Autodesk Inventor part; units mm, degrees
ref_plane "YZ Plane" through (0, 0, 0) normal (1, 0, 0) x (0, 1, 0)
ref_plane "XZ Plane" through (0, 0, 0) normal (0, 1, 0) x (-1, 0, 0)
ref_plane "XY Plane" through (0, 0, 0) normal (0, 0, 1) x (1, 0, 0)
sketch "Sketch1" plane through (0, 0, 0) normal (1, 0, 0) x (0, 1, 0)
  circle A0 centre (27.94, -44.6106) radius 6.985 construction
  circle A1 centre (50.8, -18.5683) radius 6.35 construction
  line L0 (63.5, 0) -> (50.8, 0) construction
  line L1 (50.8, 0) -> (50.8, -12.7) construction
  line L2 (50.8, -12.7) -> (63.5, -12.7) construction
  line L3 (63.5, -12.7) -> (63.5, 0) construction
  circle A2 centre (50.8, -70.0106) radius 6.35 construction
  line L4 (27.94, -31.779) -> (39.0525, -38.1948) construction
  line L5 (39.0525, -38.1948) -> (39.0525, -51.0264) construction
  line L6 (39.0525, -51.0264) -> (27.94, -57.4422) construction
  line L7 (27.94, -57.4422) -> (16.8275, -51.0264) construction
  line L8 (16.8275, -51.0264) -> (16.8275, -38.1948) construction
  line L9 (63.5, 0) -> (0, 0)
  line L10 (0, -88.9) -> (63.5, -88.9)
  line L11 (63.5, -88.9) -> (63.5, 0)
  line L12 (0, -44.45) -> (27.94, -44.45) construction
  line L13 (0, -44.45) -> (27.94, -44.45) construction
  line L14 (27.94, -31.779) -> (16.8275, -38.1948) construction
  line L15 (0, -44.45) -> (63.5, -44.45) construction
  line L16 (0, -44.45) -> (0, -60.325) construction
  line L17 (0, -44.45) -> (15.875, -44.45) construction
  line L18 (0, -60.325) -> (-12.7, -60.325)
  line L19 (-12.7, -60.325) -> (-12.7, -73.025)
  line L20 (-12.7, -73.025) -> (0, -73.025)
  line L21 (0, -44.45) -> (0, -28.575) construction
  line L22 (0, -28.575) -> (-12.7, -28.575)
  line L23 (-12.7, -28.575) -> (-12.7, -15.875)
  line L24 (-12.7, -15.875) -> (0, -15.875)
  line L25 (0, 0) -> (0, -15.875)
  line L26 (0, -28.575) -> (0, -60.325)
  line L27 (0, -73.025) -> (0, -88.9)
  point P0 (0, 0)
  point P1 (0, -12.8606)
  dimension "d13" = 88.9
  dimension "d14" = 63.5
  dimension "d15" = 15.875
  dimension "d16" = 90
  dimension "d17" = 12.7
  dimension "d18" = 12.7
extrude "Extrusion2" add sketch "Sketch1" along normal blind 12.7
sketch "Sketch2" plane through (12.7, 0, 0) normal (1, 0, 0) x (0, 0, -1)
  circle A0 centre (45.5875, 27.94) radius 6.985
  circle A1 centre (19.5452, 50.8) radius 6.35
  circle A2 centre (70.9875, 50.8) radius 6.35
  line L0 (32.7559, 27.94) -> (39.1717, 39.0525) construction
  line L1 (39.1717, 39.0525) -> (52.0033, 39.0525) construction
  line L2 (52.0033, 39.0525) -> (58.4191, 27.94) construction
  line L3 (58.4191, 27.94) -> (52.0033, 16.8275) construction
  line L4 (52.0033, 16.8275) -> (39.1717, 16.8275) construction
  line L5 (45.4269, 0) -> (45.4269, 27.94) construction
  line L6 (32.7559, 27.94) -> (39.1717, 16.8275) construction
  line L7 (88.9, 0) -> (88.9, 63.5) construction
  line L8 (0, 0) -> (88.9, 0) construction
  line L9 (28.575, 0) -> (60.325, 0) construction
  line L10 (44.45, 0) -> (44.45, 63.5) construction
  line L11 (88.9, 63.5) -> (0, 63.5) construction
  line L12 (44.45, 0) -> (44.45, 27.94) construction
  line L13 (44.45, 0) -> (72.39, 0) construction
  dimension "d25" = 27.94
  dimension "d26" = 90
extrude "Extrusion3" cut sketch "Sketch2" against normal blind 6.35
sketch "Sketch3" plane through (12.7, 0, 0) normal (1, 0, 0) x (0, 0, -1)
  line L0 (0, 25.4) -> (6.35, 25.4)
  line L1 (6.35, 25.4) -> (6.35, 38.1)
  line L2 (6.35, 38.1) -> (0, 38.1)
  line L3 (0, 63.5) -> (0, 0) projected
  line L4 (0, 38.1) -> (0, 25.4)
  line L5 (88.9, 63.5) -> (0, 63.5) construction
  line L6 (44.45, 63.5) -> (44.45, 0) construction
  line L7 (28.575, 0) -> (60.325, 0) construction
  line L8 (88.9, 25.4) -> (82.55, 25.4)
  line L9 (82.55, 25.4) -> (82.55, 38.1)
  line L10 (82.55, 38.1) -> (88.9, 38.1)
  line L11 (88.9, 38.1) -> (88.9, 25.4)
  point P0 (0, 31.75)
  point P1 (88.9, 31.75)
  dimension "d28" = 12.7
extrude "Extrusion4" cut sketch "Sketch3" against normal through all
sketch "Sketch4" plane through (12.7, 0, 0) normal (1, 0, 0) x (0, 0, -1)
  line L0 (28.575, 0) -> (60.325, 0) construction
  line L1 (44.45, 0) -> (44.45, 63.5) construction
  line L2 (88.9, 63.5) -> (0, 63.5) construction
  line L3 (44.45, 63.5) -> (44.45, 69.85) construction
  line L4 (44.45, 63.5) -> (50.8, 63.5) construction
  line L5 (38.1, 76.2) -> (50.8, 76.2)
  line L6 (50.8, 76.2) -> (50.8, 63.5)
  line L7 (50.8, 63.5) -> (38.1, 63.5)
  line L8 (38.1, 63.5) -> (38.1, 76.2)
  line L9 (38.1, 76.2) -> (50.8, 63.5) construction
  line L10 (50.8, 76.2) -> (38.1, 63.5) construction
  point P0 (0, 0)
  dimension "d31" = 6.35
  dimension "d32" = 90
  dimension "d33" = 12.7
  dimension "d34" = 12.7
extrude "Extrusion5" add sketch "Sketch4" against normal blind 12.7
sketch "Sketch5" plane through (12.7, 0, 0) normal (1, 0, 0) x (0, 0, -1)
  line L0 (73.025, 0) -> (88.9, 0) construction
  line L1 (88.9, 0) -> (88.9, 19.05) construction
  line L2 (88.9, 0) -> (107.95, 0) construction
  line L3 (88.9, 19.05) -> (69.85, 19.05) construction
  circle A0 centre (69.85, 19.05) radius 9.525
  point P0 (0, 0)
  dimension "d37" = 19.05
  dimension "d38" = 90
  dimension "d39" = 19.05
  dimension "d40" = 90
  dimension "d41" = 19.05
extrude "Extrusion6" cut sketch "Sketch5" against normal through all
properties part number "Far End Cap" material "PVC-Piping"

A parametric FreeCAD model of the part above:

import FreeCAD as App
import Part
import Sketcher
Q = App.Units.Quantity


def add_polygon(sketch, points):
    """Adds a closed chain of lines whose ends are joined by coincident constraints."""
    first, n = sketch.GeometryCount, len(points)
    for a, b in zip(points, points[1:] + points[:1]):
        sketch.addGeometry(Part.LineSegment(App.Vector(*a, 0), App.Vector(*b, 0)), False)
    for i in range(n):
        sketch.addConstraint(Sketcher.Constraint("Coincident", first + i, 2, first + (i + 1) % n, 1))

doc = App.newDocument("Part")
body = doc.addObject("PartDesign::Body", "Body")

# Sketch on YZ plane
sketch1 = body.newObject("Sketcher::SketchObject", "Sketch")
sketch1.AttachmentSupport = (doc.getObject("YZ_Plane"), [""])
sketch1.MapMode = "FlatFace"
add_polygon(sketch1, [(64, -89), (64, 0), (0, 0), (0, -16), (-13, -16), (-13, -29), (0, -29), (0, -60), (-13, -60), (-13, -73), (0, -73), (0, -89)])  # lines 0-11
sketch1.addConstraint(Sketcher.Constraint("Vertical", 0))
sketch1.addConstraint(Sketcher.Constraint("Horizontal", 1))
sketch1.addConstraint(Sketcher.Constraint("Vertical", 2))
sketch1.addConstraint(Sketcher.Constraint("Horizontal", 3))
sketch1.addConstraint(Sketcher.Constraint("Vertical", 4))
sketch1.addConstraint(Sketcher.Constraint("Horizontal", 5))
sketch1.addConstraint(Sketcher.Constraint("Vertical", 6))
sketch1.addConstraint(Sketcher.Constraint("Horizontal", 7))
sketch1.addConstraint(Sketcher.Constraint("Vertical", 8))
sketch1.addConstraint(Sketcher.Constraint("Horizontal", 9))
sketch1.addConstraint(Sketcher.Constraint("Vertical", 10))
sketch1.addConstraint(Sketcher.Constraint("Horizontal", 11))
sketch1.addConstraint(Sketcher.Constraint("Coincident", 1, 2, -1, 1))
sketch1.addConstraint(Sketcher.Constraint("PointOnObject", 5, 2, -2))
sketch1.addConstraint(Sketcher.Constraint("PointOnObject", 9, 2, -2))
sketch1.addConstraint(Sketcher.Constraint("Vertical", 4, 2, 7, 2))
sketch1.addConstraint(Sketcher.Constraint("Equal", 9, 4))
sketch1.addConstraint(Sketcher.Constraint("Equal", 4, 8))
sketch1.addConstraint(Sketcher.Constraint("Equal", 2, 10))
sketch1.addConstraint(Sketcher.Constraint("DistanceX", 1, 2, 1, 1, Q("2.5 in")))
sketch1.addConstraint(Sketcher.Constraint("DistanceX", 3, 2, 3, 1, Q("0.5 in")))
sketch1.addConstraint(Sketcher.Constraint("DistanceY", 0, 1, 0, 2, Q("3.5 in")))
sketch1.addConstraint(Sketcher.Constraint("DistanceY", 2, 2, 2, 1, Q("0.625 in")))
pad1 = body.newObject("PartDesign::Pad", "Pad")
pad1.Profile = sketch1
pad1.Length = Q("0.5 in")

# Sketch on YZ plane
sketch2 = body.newObject("Sketcher::SketchObject", "Sketch001")
sketch2.AttachmentSupport = (doc.getObject("YZ_Plane"), [""])
sketch2.MapMode = "FlatFace"
sketch2.AttachmentOffset = App.Placement(App.Vector(0, 0, 0.5 * 25.4), App.Rotation())
sketch2.addGeometry(Part.Circle(App.Vector(28, -46, 0), App.Vector(0, 0, 1), 7), False)
sketch2.addGeometry(Part.Circle(App.Vector(51, -20, 0), App.Vector(0, 0, 1), 6), False)
sketch2.addGeometry(Part.Circle(App.Vector(51, -71, 0), App.Vector(0, 0, 1), 6), False)
sketch2.addConstraint(Sketcher.Constraint("Equal", 1, 2))
sketch2.addConstraint(Sketcher.Constraint("Vertical", 1, 3, 2, 3))
sketch2.addConstraint(Sketcher.Constraint("Diameter", 1, Q("0.5 in")))
sketch2.addConstraint(Sketcher.Constraint("DistanceX", -1, 1, 0, 3, Q("1.1 in")))
sketch2.addConstraint(Sketcher.Constraint("Diameter", 0, Q("0.55 in")))
sketch2.addConstraint(Sketcher.Constraint("DistanceX", -1, 1, 1, 3, Q("2 in")))
sketch2.addConstraint(Sketcher.Constraint("DistanceY", 2, 3, 0, 3, Q("1 in")))
sketch2.addConstraint(Sketcher.Constraint("DistanceY", 1, 3, -1, 1, Q("0.7695 in")))
sketch2.addConstraint(Sketcher.Constraint("DistanceY", 0, 3, -1, 1, 45.5875))
pocket1 = body.newObject("PartDesign::Pocket", "Pocket")
pocket1.Profile = sketch2
pocket1.Length = Q("0.25 in")

# Sketch on YZ plane
sketch3 = body.newObject("Sketcher::SketchObject", "Sketch002")
sketch3.AttachmentSupport = (doc.getObject("YZ_Plane"), [""])
sketch3.MapMode = "FlatFace"
sketch3.AttachmentOffset = App.Placement(App.Vector(0, 0, 0.5 * 25.4), App.Rotation())
add_polygon(sketch3, [(38, 0), (25, 0), (25, -6), (38, -6)])  # lines 0-3
add_polygon(sketch3, [(25, -83), (25, -89), (38, -89), (38, -83)])  # lines 4-7
sketch3.addConstraint(Sketcher.Constraint("Horizontal", 0))
sketch3.addConstraint(Sketcher.Constraint("Vertical", 1))
sketch3.addConstraint(Sketcher.Constraint("Horizontal", 2))
sketch3.addConstraint(Sketcher.Constraint("Vertical", 3))
sketch3.addConstraint(Sketcher.Constraint("Vertical", 4))
sketch3.addConstraint(Sketcher.Constraint("Horizontal", 5))
sketch3.addConstraint(Sketcher.Constraint("Vertical", 6))
sketch3.addConstraint(Sketcher.Constraint("Horizontal", 7))
sketch3.addConstraint(Sketcher.Constraint("PointOnObject", 0, 2, -1))
sketch3.addConstraint(Sketcher.Constraint("Vertical", 1, 2, 4, 2))
sketch3.addConstraint(Sketcher.Constraint("Vertical", 3, 2, 5, 2))
sketch3.addConstraint(Sketcher.Constraint("Equal", 3, 4))
sketch3.addConstraint(Sketcher.Constraint("DistanceX", 0, 2, 0, 1, Q("0.5 in")))
sketch3.addConstraint(Sketcher.Constraint("DistanceX", -1, 1, 0, 2, Q("1 in")))
sketch3.addConstraint(Sketcher.Constraint("DistanceY", 6, 2, 2, 2, Q("3 in")))
sketch3.addConstraint(Sketcher.Constraint("DistanceY", 1, 2, 1, 1, Q("0.25 in")))
pocket2 = body.newObject("PartDesign::Pocket", "Pocket001")
pocket2.Profile = sketch3
pocket2.Type = "ThroughAll"

# Sketch on YZ plane
sketch4 = body.newObject("Sketcher::SketchObject", "Sketch003")
sketch4.AttachmentSupport = (doc.getObject("YZ_Plane"), [""])
sketch4.MapMode = "FlatFace"
sketch4.AttachmentOffset = App.Placement(App.Vector(0, 0, 0.5 * 25.4), App.Rotation())
add_polygon(sketch4, [(76, -51), (76, -38), (64, -38), (64, -51)])  # lines 0-3
sketch4.addConstraint(Sketcher.Constraint("Vertical", 0))
sketch4.addConstraint(Sketcher.Constraint("Horizontal", 1))
sketch4.addConstraint(Sketcher.Constraint("Vertical", 2))
sketch4.addConstraint(Sketcher.Constraint("Horizontal", 3))
sketch4.addConstraint(Sketcher.Constraint("Equal", 3, 0))
sketch4.addConstraint(Sketcher.Constraint("DistanceX", 1, 2, 1, 1, Q("0.5 in")))
sketch4.addConstraint(Sketcher.Constraint("DistanceX", -1, 1, 0, 2, Q("3 in")))
sketch4.addConstraint(Sketcher.Constraint("DistanceY", 2, 2, -1, 1, Q("2 in")))
pad2 = body.newObject("PartDesign::Pad", "Pad001")
pad2.Profile = sketch4
pad2.Length = Q("0.5 in")
pad2.Reversed = True

# Sketch on YZ plane
sketch5 = body.newObject("Sketcher::SketchObject", "Sketch004")
sketch5.AttachmentSupport = (doc.getObject("YZ_Plane"), [""])
sketch5.MapMode = "FlatFace"
sketch5.AttachmentOffset = App.Placement(App.Vector(0, 0, 0.5 * 25.4), App.Rotation())
sketch5.addGeometry(Part.Circle(App.Vector(19, -70, 0), App.Vector(0, 0, 1), 10), False)
sketch5.addConstraint(Sketcher.Constraint("Diameter", 0, Q("0.75 in")))
sketch5.addConstraint(Sketcher.Constraint("DistanceX", -1, 1, 0, 3, Q("0.75 in")))
sketch5.addConstraint(Sketcher.Constraint("DistanceY", 0, 3, -1, 1, Q("2.75 in")))
pocket3 = body.newObject("PartDesign::Pocket", "Pocket002")
pocket3.Profile = sketch5
pocket3.Type = "ThroughAll"

doc.recompute()
